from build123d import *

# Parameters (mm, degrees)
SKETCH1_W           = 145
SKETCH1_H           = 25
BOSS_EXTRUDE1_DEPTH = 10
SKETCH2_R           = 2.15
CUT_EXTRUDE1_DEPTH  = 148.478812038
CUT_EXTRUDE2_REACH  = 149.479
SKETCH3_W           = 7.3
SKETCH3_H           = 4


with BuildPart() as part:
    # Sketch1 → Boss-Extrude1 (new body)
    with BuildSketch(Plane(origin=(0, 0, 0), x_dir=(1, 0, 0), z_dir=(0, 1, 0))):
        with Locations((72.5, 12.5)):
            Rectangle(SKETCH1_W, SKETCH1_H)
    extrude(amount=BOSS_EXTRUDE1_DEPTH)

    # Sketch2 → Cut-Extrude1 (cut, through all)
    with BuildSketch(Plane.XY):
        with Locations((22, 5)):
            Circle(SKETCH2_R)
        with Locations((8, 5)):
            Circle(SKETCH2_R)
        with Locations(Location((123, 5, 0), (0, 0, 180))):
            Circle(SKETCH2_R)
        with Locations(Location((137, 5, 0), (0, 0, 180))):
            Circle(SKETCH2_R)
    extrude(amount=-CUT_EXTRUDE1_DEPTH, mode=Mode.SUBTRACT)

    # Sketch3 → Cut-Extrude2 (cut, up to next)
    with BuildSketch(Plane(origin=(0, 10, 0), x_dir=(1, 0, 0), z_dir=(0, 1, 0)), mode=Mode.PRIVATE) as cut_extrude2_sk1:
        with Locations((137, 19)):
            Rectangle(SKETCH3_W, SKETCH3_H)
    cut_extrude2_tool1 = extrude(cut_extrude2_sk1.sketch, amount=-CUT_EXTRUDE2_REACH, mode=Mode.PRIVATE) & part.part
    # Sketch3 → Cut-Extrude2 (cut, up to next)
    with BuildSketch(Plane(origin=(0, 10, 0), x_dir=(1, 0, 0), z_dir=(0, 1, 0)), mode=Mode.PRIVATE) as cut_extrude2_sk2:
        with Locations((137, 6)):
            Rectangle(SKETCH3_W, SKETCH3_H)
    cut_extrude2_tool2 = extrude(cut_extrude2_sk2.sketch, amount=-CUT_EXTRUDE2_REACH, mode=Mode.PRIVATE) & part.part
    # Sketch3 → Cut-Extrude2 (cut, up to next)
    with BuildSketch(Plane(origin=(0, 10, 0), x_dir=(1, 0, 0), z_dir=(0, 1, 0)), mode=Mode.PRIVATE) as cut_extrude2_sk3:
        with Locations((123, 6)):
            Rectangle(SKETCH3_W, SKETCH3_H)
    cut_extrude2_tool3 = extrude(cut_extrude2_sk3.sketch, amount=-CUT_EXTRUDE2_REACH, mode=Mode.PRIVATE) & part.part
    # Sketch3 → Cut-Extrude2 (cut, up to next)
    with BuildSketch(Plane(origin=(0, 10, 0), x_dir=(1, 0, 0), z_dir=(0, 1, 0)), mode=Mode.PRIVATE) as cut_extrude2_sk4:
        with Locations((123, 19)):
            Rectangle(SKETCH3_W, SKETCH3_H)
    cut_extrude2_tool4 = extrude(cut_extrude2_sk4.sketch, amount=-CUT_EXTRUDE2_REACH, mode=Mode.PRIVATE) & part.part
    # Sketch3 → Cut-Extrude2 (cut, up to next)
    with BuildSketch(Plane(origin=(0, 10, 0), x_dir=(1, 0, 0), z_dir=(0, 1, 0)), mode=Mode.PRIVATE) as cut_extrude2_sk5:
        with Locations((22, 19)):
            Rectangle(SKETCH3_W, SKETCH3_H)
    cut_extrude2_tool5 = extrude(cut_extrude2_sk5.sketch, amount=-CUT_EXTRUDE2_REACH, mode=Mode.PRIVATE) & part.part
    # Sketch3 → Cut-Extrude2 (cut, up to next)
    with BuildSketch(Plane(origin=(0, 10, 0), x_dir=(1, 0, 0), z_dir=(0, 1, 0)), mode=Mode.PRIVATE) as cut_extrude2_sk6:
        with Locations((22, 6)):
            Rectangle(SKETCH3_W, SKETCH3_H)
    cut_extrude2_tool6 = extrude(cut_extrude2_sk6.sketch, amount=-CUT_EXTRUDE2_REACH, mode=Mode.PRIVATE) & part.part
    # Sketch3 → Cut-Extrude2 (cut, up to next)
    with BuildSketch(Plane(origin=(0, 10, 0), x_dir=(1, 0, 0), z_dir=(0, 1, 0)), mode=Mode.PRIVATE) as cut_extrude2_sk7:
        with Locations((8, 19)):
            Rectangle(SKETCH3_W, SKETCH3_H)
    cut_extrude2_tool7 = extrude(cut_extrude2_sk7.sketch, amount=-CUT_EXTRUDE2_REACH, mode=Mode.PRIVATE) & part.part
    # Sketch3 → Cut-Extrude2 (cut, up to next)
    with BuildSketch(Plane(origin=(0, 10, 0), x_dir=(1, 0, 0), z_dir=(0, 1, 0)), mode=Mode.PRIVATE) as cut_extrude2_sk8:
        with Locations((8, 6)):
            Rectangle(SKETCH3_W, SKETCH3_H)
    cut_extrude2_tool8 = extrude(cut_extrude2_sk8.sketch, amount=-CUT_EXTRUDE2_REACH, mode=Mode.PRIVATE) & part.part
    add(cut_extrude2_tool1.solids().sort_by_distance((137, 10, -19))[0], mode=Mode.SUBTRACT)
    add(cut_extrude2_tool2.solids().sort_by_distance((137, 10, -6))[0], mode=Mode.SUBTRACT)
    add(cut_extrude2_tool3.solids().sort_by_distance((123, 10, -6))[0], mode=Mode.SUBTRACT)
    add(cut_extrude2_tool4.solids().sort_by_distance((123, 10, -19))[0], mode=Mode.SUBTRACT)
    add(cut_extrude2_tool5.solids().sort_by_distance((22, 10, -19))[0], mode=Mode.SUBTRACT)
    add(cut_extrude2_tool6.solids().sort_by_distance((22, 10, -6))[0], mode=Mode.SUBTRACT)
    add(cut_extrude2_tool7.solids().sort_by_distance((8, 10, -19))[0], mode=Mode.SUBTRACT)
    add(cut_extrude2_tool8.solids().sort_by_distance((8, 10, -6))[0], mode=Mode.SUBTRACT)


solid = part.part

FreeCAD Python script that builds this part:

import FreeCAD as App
import Part
import Sketcher
from FreeCAD import Vector


def add_polygon(sketch, points):
    """Adds a closed chain of lines whose ends are joined by coincident constraints."""
    first, n = sketch.GeometryCount, len(points)
    for a, b in zip(points, points[1:] + points[:1]):
        sketch.addGeometry(Part.LineSegment(App.Vector(*a, 0), App.Vector(*b, 0)), False)
    for i in range(n):
        sketch.addConstraint(Sketcher.Constraint("Coincident", first + i, 2, first + (i + 1) % n, 1))

doc = App.newDocument("Part")
body = doc.addObject("PartDesign::Body", "Body")

# Sketch on XZ plane
sketch1 = body.newObject("Sketcher::SketchObject", "Sketch")
sketch1.AttachmentSupport = (doc.getObject("XZ_Plane"), [""])
sketch1.MapMode = "FlatFace"
add_polygon(sketch1, [(0, -25), (0, 0), (145, 0), (145, -25)])  # lines 0-3
sketch1.addConstraint(Sketcher.Constraint("Vertical", 0))
sketch1.addConstraint(Sketcher.Constraint("Horizontal", 1))
sketch1.addConstraint(Sketcher.Constraint("Vertical", 2))
sketch1.addConstraint(Sketcher.Constraint("Horizontal", 3))
sketch1.addConstraint(Sketcher.Constraint("Coincident", 0, 2, -1, 1))
sketch1.addConstraint(Sketcher.Constraint("DistanceX", 1, 1, 1, 2, 145.0))
sketch1.addConstraint(Sketcher.Constraint("DistanceY", 0, 1, 0, 2, 25.0))
pad1 = body.newObject("PartDesign::Pad", "Pad")
pad1.Profile = sketch1
pad1.Length = 10
pad1.Reversed = True

# Sketch on XY plane
sketch2 = body.newObject("Sketcher::SketchObject", "Sketch001")
sketch2.AttachmentSupport = (doc.getObject("XY_Plane"), [""])
sketch2.MapMode = "FlatFace"
sketch2.addGeometry(Part.Circle(Vector(22, 5, 0), Vector(0, 0, 1), 2.15), False)
sketch2.addGeometry(Part.Circle(Vector(8, 5, 0), Vector(0, 0, 1), 2.15), False)
sketch2.addGeometry(Part.Circle(Vector(123, 5, 0), Vector(0, 0, 1), 2.15), False)
sketch2.addGeometry(Part.Circle(Vector(137, 5, 0), Vector(0, 0, 1), 2.15), False)
sketch2.addConstraint(Sketcher.Constraint("Equal", 0, 1))
sketch2.addConstraint(Sketcher.Constraint("Equal", 1, 2))
sketch2.addConstraint(Sketcher.Constraint("Equal", 2, 3))
sketch2.addConstraint(Sketcher.Constraint("Horizontal", 0, 3, 1, 3))
sketch2.addConstraint(Sketcher.Constraint("Horizontal", 1, 3, 2, 3))
sketch2.addConstraint(Sketcher.Constraint("Horizontal", 2, 3, 3, 3))
sketch2.addConstraint(Sketcher.Constraint("Diameter", 0, 4.3))
sketch2.addConstraint(Sketcher.Constraint("DistanceX", -1, 1, 0, 3, 22.0))
sketch2.addConstraint(Sketcher.Constraint("DistanceY", -1, 1, 0, 3, 5.0))
sketch2.addConstraint(Sketcher.Constraint("DistanceX", -1, 1, 1, 3, 8.0))
sketch2.addConstraint(Sketcher.Constraint("DistanceX", -1, 1, 2, 3, 123.0))
sketch2.addConstraint(Sketcher.Constraint("DistanceX", -1, 1, 3, 3, 137.0))
pocket1 = body.newObject("PartDesign::Pocket", "Pocket")
pocket1.Profile = sketch2
pocket1.Type = "ThroughAll"

# Sketch on XZ plane
sketch3 = body.newObject("Sketcher::SketchObject", "Sketch002")
sketch3.AttachmentSupport = (doc.getObject("XZ_Plane"), [""])
sketch3.MapMode = "FlatFace"
sketch3.AttachmentOffset = App.Placement(Vector(0, 0, -10), App.Rotation())
add_polygon(sketch3, [(133.35, -21), (133.35, -17), (140.65, -17), (140.65, -21)])  # lines 0-3
sketch3.addConstraint(Sketcher.Constraint("Vertical", 0))
sketch3.addConstraint(Sketcher.Constraint("Horizontal", 1))
sketch3.addConstraint(Sketcher.Constraint("Vertical", 2))
sketch3.addConstraint(Sketcher.Constraint("Horizontal", 3))
sketch3.addConstraint(Sketcher.Constraint("DistanceY", 0, 1, 0, 2, 4.0))
sketch3.addConstraint(Sketcher.Constraint("DistanceX", 1, 1, 1, 2, 7.3))
sketch3.addConstraint(Sketcher.Constraint("DistanceY", 0, 2, -1, 1, 17.0))
sketch3.addConstraint(Sketcher.Constraint("DistanceX", -1, 1, 0, 2, 133.35))
pocket2 = body.newObject("PartDesign::Pocket", "Pocket001")
pocket2.Profile = sketch3
pocket2.Type = "UpToFirst"
pocket2.Reversed = True

# Sketch on XZ plane
sketch4 = body.newObject("Sketcher::SketchObject", "Sketch003")
sketch4.AttachmentSupport = (doc.getObject("XZ_Plane"), [""])
sketch4.MapMode = "FlatFace"
sketch4.AttachmentOffset = App.Placement(Vector(0, 0, -10), App.Rotation())
add_polygon(sketch4, [(133.35, -8), (133.35, -4), (140.65, -4), (140.65, -8)])  # lines 0-3
sketch4.addConstraint(Sketcher.Constraint("Vertical", 0))
sketch4.addConstraint(Sketcher.Constraint("Horizontal", 1))
sketch4.addConstraint(Sketcher.Constraint("Vertical", 2))
sketch4.addConstraint(Sketcher.Constraint("Horizontal", 3))
sketch4.addConstraint(Sketcher.Constraint("DistanceY", 0, 1, 0, 2, 4.0))
sketch4.addConstraint(Sketcher.Constraint("DistanceX", 1, 1, 1, 2, 7.3))
sketch4.addConstraint(Sketcher.Constraint("DistanceY", 0, 2, -1, 1, 4.0))
sketch4.addConstraint(Sketcher.Constraint("DistanceX", -1, 1, 0, 2, 133.35))
pocket3 = body.newObject("PartDesign::Pocket", "Pocket002")
pocket3.Profile = sketch4
pocket3.Type = "UpToFirst"
pocket3.Reversed = True

# Sketch on XZ plane
sketch5 = body.newObject("Sketcher::SketchObject", "Sketch004")
sketch5.AttachmentSupport = (doc.getObject("XZ_Plane"), [""])
sketch5.MapMode = "FlatFace"
sketch5.AttachmentOffset = App.Placement(Vector(0, 0, -10), App.Rotation())
add_polygon(sketch5, [(119.35, -8), (119.35, -4), (126.65, -4), (126.65, -8)])  # lines 0-3
sketch5.addConstraint(Sketcher.Constraint("Vertical", 0))
sketch5.addConstraint(Sketcher.Constraint("Horizontal", 1))
sketch5.addConstraint(Sketcher.Constraint("Vertical", 2))
sketch5.addConstraint(Sketcher.Constraint("Horizontal", 3))
sketch5.addConstraint(Sketcher.Constraint("DistanceY", 0, 1, 0, 2, 4.0))
sketch5.addConstraint(Sketcher.Constraint("DistanceX", 1, 1, 1, 2, 7.3))
sketch5.addConstraint(Sketcher.Constraint("DistanceY", 0, 2, -1, 1, 4.0))
sketch5.addConstraint(Sketcher.Constraint("DistanceX", -1, 1, 0, 2, 119.35))
pocket4 = body.newObject("PartDesign::Pocket", "Pocket003")
pocket4.Profile = sketch5
pocket4.Type = "UpToFirst"
pocket4.Reversed = True

# Sketch on XZ plane
sketch6 = body.newObject("Sketcher::SketchObject", "Sketch005")
sketch6.AttachmentSupport = (doc.getObject("XZ_Plane"), [""])
sketch6.MapMode = "FlatFace"
sketch6.AttachmentOffset = App.Placement(Vector(0, 0, -10), App.Rotation())
add_polygon(sketch6, [(119.35, -21), (119.35, -17), (126.65, -17), (126.65, -21)])  # lines 0-3
sketch6.addConstraint(Sketcher.Constraint("Vertical", 0))
sketch6.addConstraint(Sketcher.Constraint("Horizontal", 1))
sketch6.addConstraint(Sketcher.Constraint("Vertical", 2))
sketch6.addConstraint(Sketcher.Constraint("Horizontal", 3))
sketch6.addConstraint(Sketcher.Constraint("DistanceY", 0, 1, 0, 2, 4.0))
sketch6.addConstraint(Sketcher.Constraint("DistanceX", 1, 1, 1, 2, 7.3))
sketch6.addConstraint(Sketcher.Constraint("DistanceY", 0, 2, -1, 1, 17.0))
sketch6.addConstraint(Sketcher.Constraint("DistanceX", -1, 1, 0, 2, 119.35))
pocket5 = body.newObject("PartDesign::Pocket", "Pocket004")
pocket5.Profile = sketch6
pocket5.Type = "UpToFirst"
pocket5.Reversed = True

# Sketch on XZ plane
sketch7 = body.newObject("Sketcher::SketchObject", "Sketch006")
sketch7.AttachmentSupport = (doc.getObject("XZ_Plane"), [""])
sketch7.MapMode = "FlatFace"
sketch7.AttachmentOffset = App.Placement(Vector(0, 0, -10), App.Rotation())
add_polygon(sketch7, [(18.35, -21), (18.35, -17), (25.65, -17), (25.65, -21)])  # lines 0-3
sketch7.addConstraint(Sketcher.Constraint("Vertical", 0))
sketch7.addConstraint(Sketcher.Constraint("Horizontal", 1))
sketch7.addConstraint(Sketcher.Constraint("Vertical", 2))
sketch7.addConstraint(Sketcher.Constraint("Horizontal", 3))
sketch7.addConstraint(Sketcher.Constraint("DistanceY", 0, 1, 0, 2, 4.0))
sketch7.addConstraint(Sketcher.Constraint("DistanceX", 1, 1, 1, 2, 7.3))
sketch7.addConstraint(Sketcher.Constraint("DistanceY", 0, 2, -1, 1, 17.0))
sketch7.addConstraint(Sketcher.Constraint("DistanceX", -1, 1, 0, 2, 18.35))
pocket6 = body.newObject("PartDesign::Pocket", "Pocket005")
pocket6.Profile = sketch7
pocket6.Type = "UpToFirst"
pocket6.Reversed = True

# Sketch on XZ plane
sketch8 = body.newObject("Sketcher::SketchObject", "Sketch007")
sketch8.AttachmentSupport = (doc.getObject("XZ_Plane"), [""])
sketch8.MapMode = "FlatFace"
sketch8.AttachmentOffset = App.Placement(Vector(0, 0, -10), App.Rotation())
add_polygon(sketch8, [(18.35, -8), (18.35, -4), (25.65, -4), (25.65, -8)])  # lines 0-3
sketch8.addConstraint(Sketcher.Constraint("Vertical", 0))
sketch8.addConstraint(Sketcher.Constraint("Horizontal", 1))
sketch8.addConstraint(Sketcher.Constraint("Vertical", 2))
sketch8.addConstraint(Sketcher.Constraint("Horizontal", 3))
sketch8.addConstraint(Sketcher.Constraint("DistanceY", 0, 1, 0, 2, 4.0))
sketch8.addConstraint(Sketcher.Constraint("DistanceX", 1, 1, 1, 2, 7.3))
sketch8.addConstraint(Sketcher.Constraint("DistanceY", 0, 2, -1, 1, 4.0))
sketch8.addConstraint(Sketcher.Constraint("DistanceX", -1, 1, 0, 2, 18.35))
pocket7 = body.newObject("PartDesign::Pocket", "Pocket006")
pocket7.Profile = sketch8
pocket7.Type = "UpToFirst"
pocket7.Reversed = True

# Sketch on XZ plane
sketch9 = body.newObject("Sketcher::SketchObject", "Sketch008")
sketch9.AttachmentSupport = (doc.getObject("XZ_Plane"), [""])
sketch9.MapMode = "FlatFace"
sketch9.AttachmentOffset = App.Placement(Vector(0, 0, -10), App.Rotation())
add_polygon(sketch9, [(4.35, -21), (4.35, -17), (11.65, -17), (11.65, -21)])  # lines 0-3
sketch9.addConstraint(Sketcher.Constraint("Vertical", 0))
sketch9.addConstraint(Sketcher.Constraint("Horizontal", 1))
sketch9.addConstraint(Sketcher.Constraint("Vertical", 2))
sketch9.addConstraint(Sketcher.Constraint("Horizontal", 3))
sketch9.addConstraint(Sketcher.Constraint("DistanceY", 0, 1, 0, 2, 4.0))
sketch9.addConstraint(Sketcher.Constraint("DistanceX", 1, 1, 1, 2, 7.3))
sketch9.addConstraint(Sketcher.Constraint("DistanceY", 0, 2, -1, 1, 17.0))
sketch9.addConstraint(Sketcher.Constraint("DistanceX", -1, 1, 0, 2, 4.35))
pocket8 = body.newObject("PartDesign::Pocket", "Pocket007")
pocket8.Profile = sketch9
pocket8.Type = "UpToFirst"
pocket8.Reversed = True

# Sketch on XZ plane
sketch10 = body.newObject("Sketcher::SketchObject", "Sketch009")
sketch10.AttachmentSupport = (doc.getObject("XZ_Plane"), [""])
sketch10.MapMode = "FlatFace"
sketch10.AttachmentOffset = App.Placement(Vector(0, 0, -10), App.Rotation())
add_polygon(sketch10, [(4.35, -8), (4.35, -4), (11.65, -4), (11.65, -8)])  # lines 0-3
sketch10.addConstraint(Sketcher.Constraint("Vertical", 0))
sketch10.addConstraint(Sketcher.Constraint("Horizontal", 1))
sketch10.addConstraint(Sketcher.Constraint("Vertical", 2))
sketch10.addConstraint(Sketcher.Constraint("Horizontal", 3))
sketch10.addConstraint(Sketcher.Constraint("DistanceY", 0, 1, 0, 2, 4.0))
sketch10.addConstraint(Sketcher.Constraint("DistanceX", 1, 1, 1, 2, 7.3))
sketch10.addConstraint(Sketcher.Constraint("DistanceY", 0, 2, -1, 1, 4.0))
sketch10.addConstraint(Sketcher.Constraint("DistanceX", -1, 1, 0, 2, 4.35))
pocket9 = body.newObject("PartDesign::Pocket", "Pocket008")
pocket9.Profile = sketch10
pocket9.Type = "UpToFirst"
pocket9.Reversed = True

doc.recompute()
